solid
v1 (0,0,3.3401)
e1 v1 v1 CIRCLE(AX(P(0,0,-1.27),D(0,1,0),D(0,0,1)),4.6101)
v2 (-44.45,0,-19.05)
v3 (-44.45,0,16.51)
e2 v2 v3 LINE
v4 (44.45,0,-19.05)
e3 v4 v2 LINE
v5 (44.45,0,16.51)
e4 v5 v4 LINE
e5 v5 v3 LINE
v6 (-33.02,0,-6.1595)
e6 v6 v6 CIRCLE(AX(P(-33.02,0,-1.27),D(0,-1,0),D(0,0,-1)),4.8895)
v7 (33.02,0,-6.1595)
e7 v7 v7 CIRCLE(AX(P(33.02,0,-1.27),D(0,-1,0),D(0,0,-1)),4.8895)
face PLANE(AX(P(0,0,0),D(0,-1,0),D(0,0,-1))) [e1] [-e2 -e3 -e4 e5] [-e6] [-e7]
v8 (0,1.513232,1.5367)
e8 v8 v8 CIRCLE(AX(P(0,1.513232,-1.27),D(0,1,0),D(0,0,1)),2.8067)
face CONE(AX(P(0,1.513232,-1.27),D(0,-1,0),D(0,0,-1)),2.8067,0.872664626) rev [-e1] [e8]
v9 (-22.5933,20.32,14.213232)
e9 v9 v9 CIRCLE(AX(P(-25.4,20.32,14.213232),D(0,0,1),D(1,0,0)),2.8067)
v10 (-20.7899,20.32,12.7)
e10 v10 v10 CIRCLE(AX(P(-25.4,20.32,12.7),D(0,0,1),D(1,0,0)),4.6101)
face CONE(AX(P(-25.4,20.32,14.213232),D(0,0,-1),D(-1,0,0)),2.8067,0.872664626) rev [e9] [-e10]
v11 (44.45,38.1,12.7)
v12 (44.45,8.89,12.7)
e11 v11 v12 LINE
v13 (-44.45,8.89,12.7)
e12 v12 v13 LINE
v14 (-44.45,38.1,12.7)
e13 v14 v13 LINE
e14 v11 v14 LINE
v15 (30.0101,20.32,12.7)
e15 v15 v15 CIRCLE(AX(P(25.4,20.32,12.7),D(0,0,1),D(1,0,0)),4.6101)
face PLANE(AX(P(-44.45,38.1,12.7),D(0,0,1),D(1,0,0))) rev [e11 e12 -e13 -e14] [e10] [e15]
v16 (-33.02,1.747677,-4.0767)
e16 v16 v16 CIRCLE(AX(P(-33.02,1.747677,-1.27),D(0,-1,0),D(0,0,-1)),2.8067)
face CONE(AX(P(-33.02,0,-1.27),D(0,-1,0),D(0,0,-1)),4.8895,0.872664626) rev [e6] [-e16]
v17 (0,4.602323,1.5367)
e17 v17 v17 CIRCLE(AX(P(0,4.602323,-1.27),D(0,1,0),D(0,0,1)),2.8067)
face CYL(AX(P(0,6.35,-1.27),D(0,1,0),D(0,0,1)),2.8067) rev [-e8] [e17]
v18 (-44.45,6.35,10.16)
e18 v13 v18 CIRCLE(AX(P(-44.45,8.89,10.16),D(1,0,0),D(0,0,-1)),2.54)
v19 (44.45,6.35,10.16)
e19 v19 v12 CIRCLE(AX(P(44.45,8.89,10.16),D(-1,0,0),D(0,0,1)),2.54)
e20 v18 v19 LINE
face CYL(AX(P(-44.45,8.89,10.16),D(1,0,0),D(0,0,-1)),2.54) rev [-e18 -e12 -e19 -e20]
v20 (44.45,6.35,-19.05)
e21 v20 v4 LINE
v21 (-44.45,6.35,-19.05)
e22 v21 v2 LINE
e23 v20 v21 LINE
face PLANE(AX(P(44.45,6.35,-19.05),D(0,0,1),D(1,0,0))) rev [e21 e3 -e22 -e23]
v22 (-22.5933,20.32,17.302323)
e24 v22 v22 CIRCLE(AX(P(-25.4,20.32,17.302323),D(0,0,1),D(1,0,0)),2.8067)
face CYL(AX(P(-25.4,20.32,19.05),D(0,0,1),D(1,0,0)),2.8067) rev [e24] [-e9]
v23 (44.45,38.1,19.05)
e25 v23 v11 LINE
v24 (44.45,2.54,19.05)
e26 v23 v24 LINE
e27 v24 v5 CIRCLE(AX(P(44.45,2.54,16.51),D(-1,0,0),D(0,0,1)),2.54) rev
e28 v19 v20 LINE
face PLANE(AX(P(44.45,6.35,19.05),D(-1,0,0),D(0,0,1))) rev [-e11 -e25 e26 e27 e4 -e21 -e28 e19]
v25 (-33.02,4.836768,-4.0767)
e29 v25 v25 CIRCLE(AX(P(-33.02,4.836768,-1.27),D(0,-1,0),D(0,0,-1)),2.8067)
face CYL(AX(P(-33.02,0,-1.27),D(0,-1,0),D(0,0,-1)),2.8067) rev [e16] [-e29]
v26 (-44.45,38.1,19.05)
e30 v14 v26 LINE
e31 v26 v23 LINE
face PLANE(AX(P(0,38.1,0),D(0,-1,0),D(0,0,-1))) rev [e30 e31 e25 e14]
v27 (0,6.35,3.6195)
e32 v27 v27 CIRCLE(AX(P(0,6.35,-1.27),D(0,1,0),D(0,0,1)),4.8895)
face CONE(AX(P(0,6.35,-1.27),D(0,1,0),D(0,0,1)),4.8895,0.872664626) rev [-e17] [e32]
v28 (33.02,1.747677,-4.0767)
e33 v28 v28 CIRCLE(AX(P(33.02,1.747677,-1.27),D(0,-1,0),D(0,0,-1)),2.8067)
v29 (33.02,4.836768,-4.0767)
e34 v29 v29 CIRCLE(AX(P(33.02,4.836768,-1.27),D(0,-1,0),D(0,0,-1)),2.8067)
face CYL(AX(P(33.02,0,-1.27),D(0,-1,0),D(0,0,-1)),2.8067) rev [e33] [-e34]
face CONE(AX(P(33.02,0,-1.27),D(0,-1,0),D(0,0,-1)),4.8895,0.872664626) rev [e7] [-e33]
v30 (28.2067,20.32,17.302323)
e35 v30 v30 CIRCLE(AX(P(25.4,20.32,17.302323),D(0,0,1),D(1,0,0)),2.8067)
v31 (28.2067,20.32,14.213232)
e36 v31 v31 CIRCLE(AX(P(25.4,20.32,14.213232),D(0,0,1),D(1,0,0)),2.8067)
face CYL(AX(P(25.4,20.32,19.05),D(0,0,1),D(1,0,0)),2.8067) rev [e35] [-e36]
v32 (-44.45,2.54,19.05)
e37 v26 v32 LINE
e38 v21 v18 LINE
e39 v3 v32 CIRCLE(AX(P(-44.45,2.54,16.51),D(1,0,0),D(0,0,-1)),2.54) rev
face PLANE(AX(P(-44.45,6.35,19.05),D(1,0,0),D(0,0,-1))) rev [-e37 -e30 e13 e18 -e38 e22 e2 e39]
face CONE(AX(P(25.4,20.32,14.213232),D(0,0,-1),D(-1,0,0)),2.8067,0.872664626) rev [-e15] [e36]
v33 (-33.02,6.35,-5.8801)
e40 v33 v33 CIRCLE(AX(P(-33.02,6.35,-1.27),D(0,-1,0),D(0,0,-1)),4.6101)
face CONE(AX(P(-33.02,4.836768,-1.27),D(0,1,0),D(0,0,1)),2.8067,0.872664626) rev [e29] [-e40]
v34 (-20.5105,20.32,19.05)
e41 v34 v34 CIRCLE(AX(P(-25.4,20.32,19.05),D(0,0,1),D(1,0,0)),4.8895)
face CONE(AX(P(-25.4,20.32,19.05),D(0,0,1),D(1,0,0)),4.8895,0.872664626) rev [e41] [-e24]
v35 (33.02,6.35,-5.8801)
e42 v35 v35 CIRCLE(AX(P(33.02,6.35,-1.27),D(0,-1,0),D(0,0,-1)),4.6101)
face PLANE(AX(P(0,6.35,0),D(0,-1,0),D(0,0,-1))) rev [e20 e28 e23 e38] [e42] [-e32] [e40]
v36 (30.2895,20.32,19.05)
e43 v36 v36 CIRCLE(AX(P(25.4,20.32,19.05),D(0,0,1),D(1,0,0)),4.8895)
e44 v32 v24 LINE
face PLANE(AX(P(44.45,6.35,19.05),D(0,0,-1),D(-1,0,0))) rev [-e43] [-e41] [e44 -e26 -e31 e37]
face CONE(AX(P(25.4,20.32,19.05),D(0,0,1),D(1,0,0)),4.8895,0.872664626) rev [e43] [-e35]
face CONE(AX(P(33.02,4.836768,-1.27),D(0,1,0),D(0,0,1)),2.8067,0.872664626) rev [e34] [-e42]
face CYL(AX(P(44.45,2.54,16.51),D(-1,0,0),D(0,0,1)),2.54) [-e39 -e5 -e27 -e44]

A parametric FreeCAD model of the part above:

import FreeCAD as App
import Part
import Sketcher

V = App.Vector
Q = App.Units.Quantity


def edges_at(feature, points):
    """Names of the edges that pass closest to the given points."""
    edges = feature.Shape.Edges
    near = lambda p: min(range(len(edges)), key=lambda i: edges[i].distToShape(Part.Vertex(*p))[0])
    return sorted({f"Edge{near(p) + 1}" for p in points})


def add_polygon(sketch, points):
    """Adds a closed chain of lines whose ends are joined by coincident constraints."""
    first, n = sketch.GeometryCount, len(points)
    for a, b in zip(points, points[1:] + points[:1]):
        sketch.addGeometry(Part.LineSegment(App.Vector(*a, 0), App.Vector(*b, 0)), False)
    for i in range(n):
        sketch.addConstraint(Sketcher.Constraint("Coincident", first + i, 2, first + (i + 1) % n, 1))

doc = App.newDocument("Part")
body = doc.addObject("PartDesign::Body", "Body")

# Sketch on XZ plane
sketch1 = doc.addObject("Sketcher::SketchObject", "Sketch")
body.addObject(sketch1)
sketch1.AttachmentSupport = (doc.XZ_Plane, [""])
sketch1.MapMode = "FlatFace"
add_polygon(sketch1, [(-44, -19), (-44, 19), (44, 19), (44, -19)])  # lines 0-3
sketch1.addConstraint([
    Sketcher.Constraint("Vertical", 0),
    Sketcher.Constraint("Horizontal", 1),
    Sketcher.Constraint("Vertical", 2),
    Sketcher.Constraint("Horizontal", 3),
    Sketcher.Constraint("Symmetric", 0, 2, 2, 2, -1, 1),
    Sketcher.Constraint("DistanceX", 1, 1, 1, 2, Q("3.5 in")),
    Sketcher.Constraint("DistanceY", 0, 1, 0, 2, Q("1.5 in")),
])
pad1 = doc.addObject("PartDesign::Pad", "Pad")
body.addObject(pad1)
pad1.Profile = sketch1
pad1.Length = Q("0.25 in")
pad1.Reversed = True

# Sketch on XZ plane
sketch2 = doc.addObject("Sketcher::SketchObject", "Sketch001")
body.addObject(sketch2)
sketch2.AttachmentSupport = (doc.XZ_Plane, [""])
sketch2.MapMode = "FlatFace"
sketch2.AttachmentOffset = App.Placement(V(0, 0, -0.25 * 25.4), App.Rotation())
add_polygon(sketch2, [(-44, 13), (-44, 19), (44, 19), (44, 13)])  # lines 0-3
sketch2.addConstraint([
    Sketcher.Constraint("Vertical", 0),
    Sketcher.Constraint("Horizontal", 1),
    Sketcher.Constraint("Vertical", 2),
    Sketcher.Constraint("Horizontal", 3),
    Sketcher.Constraint("DistanceX", 1, 1, 1, 2, Q("3.5 in")),
    Sketcher.Constraint("DistanceY", 0, 1, 0, 2, Q("0.25 in")),
    Sketcher.Constraint("DistanceY", -1, 1, 2, 2, Q("0.5 in")),
    Sketcher.Constraint("DistanceX", 0, 2, -1, 1, Q("1.75 in")),
])
pad2 = doc.addObject("PartDesign::Pad", "Pad001")
body.addObject(pad2)
pad2.Profile = sketch2
pad2.Length = Q("1.25 in")
pad2.Reversed = True
doc.recompute()

fillet = doc.addObject("PartDesign::Fillet", "Fillet")
body.addObject(fillet)
fillet.Base = (pad2, edges_at(pad2, [(0, 6.35, 12.7)]))
fillet.Radius = Q("0.1 in")
doc.recompute()

fillet2 = doc.addObject("PartDesign::Fillet", "Fillet001")
body.addObject(fillet2)
fillet2.Base = (fillet, edges_at(fillet, [(0, 0, 19.05)]))
fillet2.Radius = Q("0.1 in")

# Sketch on YZ plane
sketch3 = doc.addObject("Sketcher::SketchObject", "Sketch002")
body.addObject(sketch3)
sketch3.AttachmentSupport = (doc.YZ_Plane, [""])
sketch3.MapMode = "FlatFace"
sketch3.AttachmentOffset = App.Placement(V(0, 0, -1 * 25.4), App.Rotation())
add_polygon(sketch3, [(20.3, 12.7), (20.3, 19.1), (15.4, 19.1), (17.5, 17.3), (17.5, 14.2), (15.7, 12.7)])  # lines 0-5
sketch3.addGeometry(Part.LineSegment(V(20.3, 19.1, 0), V(20.3, 12.7, 0)), True)  # axis
sketch3.addConstraint([
    Sketcher.Constraint("Vertical", 0),
    Sketcher.Constraint("Horizontal", 1),
    Sketcher.Constraint("Vertical", 3),
    Sketcher.Constraint("Horizontal", 5),
    Sketcher.Constraint("Vertical", 6),
    Sketcher.Constraint("Coincident", 6, 1, 0, 2),
    Sketcher.Constraint("Horizontal", 4, 2, 6, 2),
    Sketcher.Constraint("Angle", 2, Q("-40 deg")),
    Sketcher.Constraint("Angle", 4, Q("-140 deg")),
    Sketcher.Constraint("DistanceY", 0, 1, 0, 2, Q("0.25 in")),
    Sketcher.Constraint("DistanceX", -1, 1, 0, 2, Q("0.8 in")),
    Sketcher.Constraint("DistanceY", -1, 1, 4, 2, Q("0.5 in")),
    Sketcher.Constraint("DistanceX", 1, 2, 1, 1, Q("0.1925 in")),
    Sketcher.Constraint("DistanceX", 5, 1, 5, 2, Q("0.1815 in")),
    Sketcher.Constraint("DistanceX", 1, 2, 2, 2, Q("0.082 in")),
])
groove = doc.addObject("PartDesign::Groove", "Groove")
body.addObject(groove)
groove.Profile = sketch3
groove.ReferenceAxis = (sketch3, ["Axis0"])
groove.Angle = 360

# Sketch on YZ plane
sketch4 = doc.addObject("Sketcher::SketchObject", "Sketch003")
body.addObject(sketch4)
sketch4.AttachmentSupport = (doc.YZ_Plane, [""])
sketch4.MapMode = "FlatFace"
sketch4.AttachmentOffset = App.Placement(V(0, 0, 1 * 25.4), App.Rotation())
add_polygon(sketch4, [(20.3, 12.7), (20.3, 19.1), (15.4, 19.1), (17.5, 17.3), (17.5, 14.2), (15.7, 12.7)])  # lines 0-5
sketch4.addGeometry(Part.LineSegment(V(20.3, 19.1, 0), V(20.3, 12.7, 0)), True)  # axis
sketch4.addConstraint([
    Sketcher.Constraint("Vertical", 0),
    Sketcher.Constraint("Horizontal", 1),
    Sketcher.Constraint("Vertical", 3),
    Sketcher.Constraint("Horizontal", 5),
    Sketcher.Constraint("Vertical", 6),
    Sketcher.Constraint("Coincident", 6, 1, 0, 2),
    Sketcher.Constraint("Horizontal", 4, 2, 6, 2),
    Sketcher.Constraint("Angle", 2, Q("-40 deg")),
    Sketcher.Constraint("Angle", 4, Q("-140 deg")),
    Sketcher.Constraint("DistanceY", 0, 1, 0, 2, Q("0.25 in")),
    Sketcher.Constraint("DistanceX", -1, 1, 0, 2, Q("0.8 in")),
    Sketcher.Constraint("DistanceY", -1, 1, 4, 2, Q("0.5 in")),
    Sketcher.Constraint("DistanceX", 1, 2, 1, 1, Q("0.1925 in")),
    Sketcher.Constraint("DistanceX", 5, 1, 5, 2, Q("0.1815 in")),
    Sketcher.Constraint("DistanceX", 1, 2, 2, 2, Q("0.082 in")),
])
groove2 = doc.addObject("PartDesign::Groove", "Groove001")
body.addObject(groove2)
groove2.Profile = sketch4
groove2.ReferenceAxis = (sketch4, ["Axis0"])
groove2.Angle = 360

# Sketch on YZ plane
sketch5 = doc.addObject("Sketcher::SketchObject", "Sketch004")
body.addObject(sketch5)
sketch5.AttachmentSupport = (doc.YZ_Plane, [""])
sketch5.MapMode = "FlatFace"
sketch5.AttachmentOffset = App.Placement(V(0, 0, 1.3 * 25.4), App.Rotation())
add_polygon(sketch5, [(6.3, -1.3), (0, -1.3), (0, -6.2), (1.7, -4.1), (4.8, -4.1), (6.3, -5.9)])  # lines 0-5
sketch5.addGeometry(Part.LineSegment(V(0, -1.3, 0), V(6.3, -1.3, 0)), True)  # axis
sketch5.addConstraint([
    Sketcher.Constraint("Horizontal", 0),
    Sketcher.Constraint("Vertical", 1),
    Sketcher.Constraint("Horizontal", 3),
    Sketcher.Constraint("Vertical", 5),
    Sketcher.Constraint("Horizontal", 6),
    Sketcher.Constraint("Coincident", 6, 1, 0, 2),
    Sketcher.Constraint("PointOnObject", 0, 2, -2),
    Sketcher.Constraint("Vertical", 4, 2, 6, 2),
    Sketcher.Constraint("Angle", 2, Q("50 deg")),
    Sketcher.Constraint("Angle", 4, Q("-50 deg")),
    Sketcher.Constraint("DistanceX", 0, 2, 0, 1, Q("0.25 in")),
    Sketcher.Constraint("DistanceY", 0, 2, -1, 1, Q("0.05 in")),
    Sketcher.Constraint("DistanceY", 1, 2, 1, 1, Q("0.1925 in")),
    Sketcher.Constraint("DistanceY", 5, 1, 5, 2, Q("0.1815 in")),
    Sketcher.Constraint("DistanceY", 1, 2, 2, 2, Q("0.082 in")),
])
groove3 = doc.addObject("PartDesign::Groove", "Groove002")
body.addObject(groove3)
groove3.Profile = sketch5
groove3.ReferenceAxis = (sketch5, ["Axis0"])
groove3.Angle = 360

# Sketch on YZ plane
sketch6 = doc.addObject("Sketcher::SketchObject", "Sketch005")
body.addObject(sketch6)
sketch6.AttachmentSupport = (doc.YZ_Plane, [""])
sketch6.MapMode = "FlatFace"
sketch6.AttachmentOffset = App.Placement(V(0, 0, -1.3 * 25.4), App.Rotation())
add_polygon(sketch6, [(6.3, -1.3), (0, -1.3), (0, -6.2), (1.7, -4.1), (4.8, -4.1), (6.3, -5.9)])  # lines 0-5
sketch6.addGeometry(Part.LineSegment(V(0, -1.3, 0), V(6.3, -1.3, 0)), True)  # axis
sketch6.addConstraint([
    Sketcher.Constraint("Horizontal", 0),
    Sketcher.Constraint("Vertical", 1),
    Sketcher.Constraint("Horizontal", 3),
    Sketcher.Constraint("Vertical", 5),
    Sketcher.Constraint("Horizontal", 6),
    Sketcher.Constraint("Coincident", 6, 1, 0, 2),
    Sketcher.Constraint("PointOnObject", 0, 2, -2),
    Sketcher.Constraint("Vertical", 4, 2, 6, 2),
    Sketcher.Constraint("Angle", 2, Q("50 deg")),
    Sketcher.Constraint("Angle", 4, Q("-50 deg")),
    Sketcher.Constraint("DistanceX", 0, 2, 0, 1, Q("0.25 in")),
    Sketcher.Constraint("DistanceY", 0, 2, -1, 1, Q("0.05 in")),
    Sketcher.Constraint("DistanceY", 1, 2, 1, 1, Q("0.1925 in")),
    Sketcher.Constraint("DistanceY", 5, 1, 5, 2, Q("0.1815 in")),
    Sketcher.Constraint("DistanceY", 1, 2, 2, 2, Q("0.082 in")),
])
groove4 = doc.addObject("PartDesign::Groove", "Groove003")
body.addObject(groove4)
groove4.Profile = sketch6
groove4.ReferenceAxis = (sketch6, ["Axis0"])
groove4.Angle = 360

# Sketch on YZ plane
sketch7 = doc.addObject("Sketcher::SketchObject", "Sketch006")
body.addObject(sketch7)
sketch7.AttachmentSupport = (doc.YZ_Plane, [""])
sketch7.MapMode = "FlatFace"
add_polygon(sketch7, [(0, -1.3), (6.3, -1.3), (6.3, 3.6), (4.6, 1.5), (1.5, 1.5), (0, 3.3)])  # lines 0-5
sketch7.addGeometry(Part.LineSegment(V(6.3, -1.3, 0), V(0, -1.3, 0)), True)  # axis
sketch7.addConstraint([
    Sketcher.Constraint("Horizontal", 0),
    Sketcher.Constraint("Vertical", 1),
    Sketcher.Constraint("Horizontal", 3),
    Sketcher.Constraint("Vertical", 5),
    Sketcher.Constraint("Horizontal", 6),
    Sketcher.Constraint("Coincident", 6, 1, 0, 2),
    Sketcher.Constraint("PointOnObject", 4, 2, -2),
    Sketcher.Constraint("PointOnObject", 6, 2, -2),
    Sketcher.Constraint("Angle", 2, Q("-130 deg")),
    Sketcher.Constraint("Angle", 4, Q("130 deg")),
    Sketcher.Constraint("DistanceX", 0, 1, 0, 2, Q("0.25 in")),
    Sketcher.Constraint("DistanceY", 0, 2, -1, 1, Q("0.05 in")),
    Sketcher.Constraint("DistanceY", 1, 1, 1, 2, Q("0.1925 in")),
    Sketcher.Constraint("DistanceY", 5, 2, 5, 1, Q("0.1815 in")),
    Sketcher.Constraint("DistanceY", 2, 2, 1, 2, Q("0.082 in")),
])
groove5 = doc.addObject("PartDesign::Groove", "Groove004")
body.addObject(groove5)
groove5.Profile = sketch7
groove5.ReferenceAxis = (sketch7, ["Axis0"])
groove5.Angle = 360

doc.recompute()
